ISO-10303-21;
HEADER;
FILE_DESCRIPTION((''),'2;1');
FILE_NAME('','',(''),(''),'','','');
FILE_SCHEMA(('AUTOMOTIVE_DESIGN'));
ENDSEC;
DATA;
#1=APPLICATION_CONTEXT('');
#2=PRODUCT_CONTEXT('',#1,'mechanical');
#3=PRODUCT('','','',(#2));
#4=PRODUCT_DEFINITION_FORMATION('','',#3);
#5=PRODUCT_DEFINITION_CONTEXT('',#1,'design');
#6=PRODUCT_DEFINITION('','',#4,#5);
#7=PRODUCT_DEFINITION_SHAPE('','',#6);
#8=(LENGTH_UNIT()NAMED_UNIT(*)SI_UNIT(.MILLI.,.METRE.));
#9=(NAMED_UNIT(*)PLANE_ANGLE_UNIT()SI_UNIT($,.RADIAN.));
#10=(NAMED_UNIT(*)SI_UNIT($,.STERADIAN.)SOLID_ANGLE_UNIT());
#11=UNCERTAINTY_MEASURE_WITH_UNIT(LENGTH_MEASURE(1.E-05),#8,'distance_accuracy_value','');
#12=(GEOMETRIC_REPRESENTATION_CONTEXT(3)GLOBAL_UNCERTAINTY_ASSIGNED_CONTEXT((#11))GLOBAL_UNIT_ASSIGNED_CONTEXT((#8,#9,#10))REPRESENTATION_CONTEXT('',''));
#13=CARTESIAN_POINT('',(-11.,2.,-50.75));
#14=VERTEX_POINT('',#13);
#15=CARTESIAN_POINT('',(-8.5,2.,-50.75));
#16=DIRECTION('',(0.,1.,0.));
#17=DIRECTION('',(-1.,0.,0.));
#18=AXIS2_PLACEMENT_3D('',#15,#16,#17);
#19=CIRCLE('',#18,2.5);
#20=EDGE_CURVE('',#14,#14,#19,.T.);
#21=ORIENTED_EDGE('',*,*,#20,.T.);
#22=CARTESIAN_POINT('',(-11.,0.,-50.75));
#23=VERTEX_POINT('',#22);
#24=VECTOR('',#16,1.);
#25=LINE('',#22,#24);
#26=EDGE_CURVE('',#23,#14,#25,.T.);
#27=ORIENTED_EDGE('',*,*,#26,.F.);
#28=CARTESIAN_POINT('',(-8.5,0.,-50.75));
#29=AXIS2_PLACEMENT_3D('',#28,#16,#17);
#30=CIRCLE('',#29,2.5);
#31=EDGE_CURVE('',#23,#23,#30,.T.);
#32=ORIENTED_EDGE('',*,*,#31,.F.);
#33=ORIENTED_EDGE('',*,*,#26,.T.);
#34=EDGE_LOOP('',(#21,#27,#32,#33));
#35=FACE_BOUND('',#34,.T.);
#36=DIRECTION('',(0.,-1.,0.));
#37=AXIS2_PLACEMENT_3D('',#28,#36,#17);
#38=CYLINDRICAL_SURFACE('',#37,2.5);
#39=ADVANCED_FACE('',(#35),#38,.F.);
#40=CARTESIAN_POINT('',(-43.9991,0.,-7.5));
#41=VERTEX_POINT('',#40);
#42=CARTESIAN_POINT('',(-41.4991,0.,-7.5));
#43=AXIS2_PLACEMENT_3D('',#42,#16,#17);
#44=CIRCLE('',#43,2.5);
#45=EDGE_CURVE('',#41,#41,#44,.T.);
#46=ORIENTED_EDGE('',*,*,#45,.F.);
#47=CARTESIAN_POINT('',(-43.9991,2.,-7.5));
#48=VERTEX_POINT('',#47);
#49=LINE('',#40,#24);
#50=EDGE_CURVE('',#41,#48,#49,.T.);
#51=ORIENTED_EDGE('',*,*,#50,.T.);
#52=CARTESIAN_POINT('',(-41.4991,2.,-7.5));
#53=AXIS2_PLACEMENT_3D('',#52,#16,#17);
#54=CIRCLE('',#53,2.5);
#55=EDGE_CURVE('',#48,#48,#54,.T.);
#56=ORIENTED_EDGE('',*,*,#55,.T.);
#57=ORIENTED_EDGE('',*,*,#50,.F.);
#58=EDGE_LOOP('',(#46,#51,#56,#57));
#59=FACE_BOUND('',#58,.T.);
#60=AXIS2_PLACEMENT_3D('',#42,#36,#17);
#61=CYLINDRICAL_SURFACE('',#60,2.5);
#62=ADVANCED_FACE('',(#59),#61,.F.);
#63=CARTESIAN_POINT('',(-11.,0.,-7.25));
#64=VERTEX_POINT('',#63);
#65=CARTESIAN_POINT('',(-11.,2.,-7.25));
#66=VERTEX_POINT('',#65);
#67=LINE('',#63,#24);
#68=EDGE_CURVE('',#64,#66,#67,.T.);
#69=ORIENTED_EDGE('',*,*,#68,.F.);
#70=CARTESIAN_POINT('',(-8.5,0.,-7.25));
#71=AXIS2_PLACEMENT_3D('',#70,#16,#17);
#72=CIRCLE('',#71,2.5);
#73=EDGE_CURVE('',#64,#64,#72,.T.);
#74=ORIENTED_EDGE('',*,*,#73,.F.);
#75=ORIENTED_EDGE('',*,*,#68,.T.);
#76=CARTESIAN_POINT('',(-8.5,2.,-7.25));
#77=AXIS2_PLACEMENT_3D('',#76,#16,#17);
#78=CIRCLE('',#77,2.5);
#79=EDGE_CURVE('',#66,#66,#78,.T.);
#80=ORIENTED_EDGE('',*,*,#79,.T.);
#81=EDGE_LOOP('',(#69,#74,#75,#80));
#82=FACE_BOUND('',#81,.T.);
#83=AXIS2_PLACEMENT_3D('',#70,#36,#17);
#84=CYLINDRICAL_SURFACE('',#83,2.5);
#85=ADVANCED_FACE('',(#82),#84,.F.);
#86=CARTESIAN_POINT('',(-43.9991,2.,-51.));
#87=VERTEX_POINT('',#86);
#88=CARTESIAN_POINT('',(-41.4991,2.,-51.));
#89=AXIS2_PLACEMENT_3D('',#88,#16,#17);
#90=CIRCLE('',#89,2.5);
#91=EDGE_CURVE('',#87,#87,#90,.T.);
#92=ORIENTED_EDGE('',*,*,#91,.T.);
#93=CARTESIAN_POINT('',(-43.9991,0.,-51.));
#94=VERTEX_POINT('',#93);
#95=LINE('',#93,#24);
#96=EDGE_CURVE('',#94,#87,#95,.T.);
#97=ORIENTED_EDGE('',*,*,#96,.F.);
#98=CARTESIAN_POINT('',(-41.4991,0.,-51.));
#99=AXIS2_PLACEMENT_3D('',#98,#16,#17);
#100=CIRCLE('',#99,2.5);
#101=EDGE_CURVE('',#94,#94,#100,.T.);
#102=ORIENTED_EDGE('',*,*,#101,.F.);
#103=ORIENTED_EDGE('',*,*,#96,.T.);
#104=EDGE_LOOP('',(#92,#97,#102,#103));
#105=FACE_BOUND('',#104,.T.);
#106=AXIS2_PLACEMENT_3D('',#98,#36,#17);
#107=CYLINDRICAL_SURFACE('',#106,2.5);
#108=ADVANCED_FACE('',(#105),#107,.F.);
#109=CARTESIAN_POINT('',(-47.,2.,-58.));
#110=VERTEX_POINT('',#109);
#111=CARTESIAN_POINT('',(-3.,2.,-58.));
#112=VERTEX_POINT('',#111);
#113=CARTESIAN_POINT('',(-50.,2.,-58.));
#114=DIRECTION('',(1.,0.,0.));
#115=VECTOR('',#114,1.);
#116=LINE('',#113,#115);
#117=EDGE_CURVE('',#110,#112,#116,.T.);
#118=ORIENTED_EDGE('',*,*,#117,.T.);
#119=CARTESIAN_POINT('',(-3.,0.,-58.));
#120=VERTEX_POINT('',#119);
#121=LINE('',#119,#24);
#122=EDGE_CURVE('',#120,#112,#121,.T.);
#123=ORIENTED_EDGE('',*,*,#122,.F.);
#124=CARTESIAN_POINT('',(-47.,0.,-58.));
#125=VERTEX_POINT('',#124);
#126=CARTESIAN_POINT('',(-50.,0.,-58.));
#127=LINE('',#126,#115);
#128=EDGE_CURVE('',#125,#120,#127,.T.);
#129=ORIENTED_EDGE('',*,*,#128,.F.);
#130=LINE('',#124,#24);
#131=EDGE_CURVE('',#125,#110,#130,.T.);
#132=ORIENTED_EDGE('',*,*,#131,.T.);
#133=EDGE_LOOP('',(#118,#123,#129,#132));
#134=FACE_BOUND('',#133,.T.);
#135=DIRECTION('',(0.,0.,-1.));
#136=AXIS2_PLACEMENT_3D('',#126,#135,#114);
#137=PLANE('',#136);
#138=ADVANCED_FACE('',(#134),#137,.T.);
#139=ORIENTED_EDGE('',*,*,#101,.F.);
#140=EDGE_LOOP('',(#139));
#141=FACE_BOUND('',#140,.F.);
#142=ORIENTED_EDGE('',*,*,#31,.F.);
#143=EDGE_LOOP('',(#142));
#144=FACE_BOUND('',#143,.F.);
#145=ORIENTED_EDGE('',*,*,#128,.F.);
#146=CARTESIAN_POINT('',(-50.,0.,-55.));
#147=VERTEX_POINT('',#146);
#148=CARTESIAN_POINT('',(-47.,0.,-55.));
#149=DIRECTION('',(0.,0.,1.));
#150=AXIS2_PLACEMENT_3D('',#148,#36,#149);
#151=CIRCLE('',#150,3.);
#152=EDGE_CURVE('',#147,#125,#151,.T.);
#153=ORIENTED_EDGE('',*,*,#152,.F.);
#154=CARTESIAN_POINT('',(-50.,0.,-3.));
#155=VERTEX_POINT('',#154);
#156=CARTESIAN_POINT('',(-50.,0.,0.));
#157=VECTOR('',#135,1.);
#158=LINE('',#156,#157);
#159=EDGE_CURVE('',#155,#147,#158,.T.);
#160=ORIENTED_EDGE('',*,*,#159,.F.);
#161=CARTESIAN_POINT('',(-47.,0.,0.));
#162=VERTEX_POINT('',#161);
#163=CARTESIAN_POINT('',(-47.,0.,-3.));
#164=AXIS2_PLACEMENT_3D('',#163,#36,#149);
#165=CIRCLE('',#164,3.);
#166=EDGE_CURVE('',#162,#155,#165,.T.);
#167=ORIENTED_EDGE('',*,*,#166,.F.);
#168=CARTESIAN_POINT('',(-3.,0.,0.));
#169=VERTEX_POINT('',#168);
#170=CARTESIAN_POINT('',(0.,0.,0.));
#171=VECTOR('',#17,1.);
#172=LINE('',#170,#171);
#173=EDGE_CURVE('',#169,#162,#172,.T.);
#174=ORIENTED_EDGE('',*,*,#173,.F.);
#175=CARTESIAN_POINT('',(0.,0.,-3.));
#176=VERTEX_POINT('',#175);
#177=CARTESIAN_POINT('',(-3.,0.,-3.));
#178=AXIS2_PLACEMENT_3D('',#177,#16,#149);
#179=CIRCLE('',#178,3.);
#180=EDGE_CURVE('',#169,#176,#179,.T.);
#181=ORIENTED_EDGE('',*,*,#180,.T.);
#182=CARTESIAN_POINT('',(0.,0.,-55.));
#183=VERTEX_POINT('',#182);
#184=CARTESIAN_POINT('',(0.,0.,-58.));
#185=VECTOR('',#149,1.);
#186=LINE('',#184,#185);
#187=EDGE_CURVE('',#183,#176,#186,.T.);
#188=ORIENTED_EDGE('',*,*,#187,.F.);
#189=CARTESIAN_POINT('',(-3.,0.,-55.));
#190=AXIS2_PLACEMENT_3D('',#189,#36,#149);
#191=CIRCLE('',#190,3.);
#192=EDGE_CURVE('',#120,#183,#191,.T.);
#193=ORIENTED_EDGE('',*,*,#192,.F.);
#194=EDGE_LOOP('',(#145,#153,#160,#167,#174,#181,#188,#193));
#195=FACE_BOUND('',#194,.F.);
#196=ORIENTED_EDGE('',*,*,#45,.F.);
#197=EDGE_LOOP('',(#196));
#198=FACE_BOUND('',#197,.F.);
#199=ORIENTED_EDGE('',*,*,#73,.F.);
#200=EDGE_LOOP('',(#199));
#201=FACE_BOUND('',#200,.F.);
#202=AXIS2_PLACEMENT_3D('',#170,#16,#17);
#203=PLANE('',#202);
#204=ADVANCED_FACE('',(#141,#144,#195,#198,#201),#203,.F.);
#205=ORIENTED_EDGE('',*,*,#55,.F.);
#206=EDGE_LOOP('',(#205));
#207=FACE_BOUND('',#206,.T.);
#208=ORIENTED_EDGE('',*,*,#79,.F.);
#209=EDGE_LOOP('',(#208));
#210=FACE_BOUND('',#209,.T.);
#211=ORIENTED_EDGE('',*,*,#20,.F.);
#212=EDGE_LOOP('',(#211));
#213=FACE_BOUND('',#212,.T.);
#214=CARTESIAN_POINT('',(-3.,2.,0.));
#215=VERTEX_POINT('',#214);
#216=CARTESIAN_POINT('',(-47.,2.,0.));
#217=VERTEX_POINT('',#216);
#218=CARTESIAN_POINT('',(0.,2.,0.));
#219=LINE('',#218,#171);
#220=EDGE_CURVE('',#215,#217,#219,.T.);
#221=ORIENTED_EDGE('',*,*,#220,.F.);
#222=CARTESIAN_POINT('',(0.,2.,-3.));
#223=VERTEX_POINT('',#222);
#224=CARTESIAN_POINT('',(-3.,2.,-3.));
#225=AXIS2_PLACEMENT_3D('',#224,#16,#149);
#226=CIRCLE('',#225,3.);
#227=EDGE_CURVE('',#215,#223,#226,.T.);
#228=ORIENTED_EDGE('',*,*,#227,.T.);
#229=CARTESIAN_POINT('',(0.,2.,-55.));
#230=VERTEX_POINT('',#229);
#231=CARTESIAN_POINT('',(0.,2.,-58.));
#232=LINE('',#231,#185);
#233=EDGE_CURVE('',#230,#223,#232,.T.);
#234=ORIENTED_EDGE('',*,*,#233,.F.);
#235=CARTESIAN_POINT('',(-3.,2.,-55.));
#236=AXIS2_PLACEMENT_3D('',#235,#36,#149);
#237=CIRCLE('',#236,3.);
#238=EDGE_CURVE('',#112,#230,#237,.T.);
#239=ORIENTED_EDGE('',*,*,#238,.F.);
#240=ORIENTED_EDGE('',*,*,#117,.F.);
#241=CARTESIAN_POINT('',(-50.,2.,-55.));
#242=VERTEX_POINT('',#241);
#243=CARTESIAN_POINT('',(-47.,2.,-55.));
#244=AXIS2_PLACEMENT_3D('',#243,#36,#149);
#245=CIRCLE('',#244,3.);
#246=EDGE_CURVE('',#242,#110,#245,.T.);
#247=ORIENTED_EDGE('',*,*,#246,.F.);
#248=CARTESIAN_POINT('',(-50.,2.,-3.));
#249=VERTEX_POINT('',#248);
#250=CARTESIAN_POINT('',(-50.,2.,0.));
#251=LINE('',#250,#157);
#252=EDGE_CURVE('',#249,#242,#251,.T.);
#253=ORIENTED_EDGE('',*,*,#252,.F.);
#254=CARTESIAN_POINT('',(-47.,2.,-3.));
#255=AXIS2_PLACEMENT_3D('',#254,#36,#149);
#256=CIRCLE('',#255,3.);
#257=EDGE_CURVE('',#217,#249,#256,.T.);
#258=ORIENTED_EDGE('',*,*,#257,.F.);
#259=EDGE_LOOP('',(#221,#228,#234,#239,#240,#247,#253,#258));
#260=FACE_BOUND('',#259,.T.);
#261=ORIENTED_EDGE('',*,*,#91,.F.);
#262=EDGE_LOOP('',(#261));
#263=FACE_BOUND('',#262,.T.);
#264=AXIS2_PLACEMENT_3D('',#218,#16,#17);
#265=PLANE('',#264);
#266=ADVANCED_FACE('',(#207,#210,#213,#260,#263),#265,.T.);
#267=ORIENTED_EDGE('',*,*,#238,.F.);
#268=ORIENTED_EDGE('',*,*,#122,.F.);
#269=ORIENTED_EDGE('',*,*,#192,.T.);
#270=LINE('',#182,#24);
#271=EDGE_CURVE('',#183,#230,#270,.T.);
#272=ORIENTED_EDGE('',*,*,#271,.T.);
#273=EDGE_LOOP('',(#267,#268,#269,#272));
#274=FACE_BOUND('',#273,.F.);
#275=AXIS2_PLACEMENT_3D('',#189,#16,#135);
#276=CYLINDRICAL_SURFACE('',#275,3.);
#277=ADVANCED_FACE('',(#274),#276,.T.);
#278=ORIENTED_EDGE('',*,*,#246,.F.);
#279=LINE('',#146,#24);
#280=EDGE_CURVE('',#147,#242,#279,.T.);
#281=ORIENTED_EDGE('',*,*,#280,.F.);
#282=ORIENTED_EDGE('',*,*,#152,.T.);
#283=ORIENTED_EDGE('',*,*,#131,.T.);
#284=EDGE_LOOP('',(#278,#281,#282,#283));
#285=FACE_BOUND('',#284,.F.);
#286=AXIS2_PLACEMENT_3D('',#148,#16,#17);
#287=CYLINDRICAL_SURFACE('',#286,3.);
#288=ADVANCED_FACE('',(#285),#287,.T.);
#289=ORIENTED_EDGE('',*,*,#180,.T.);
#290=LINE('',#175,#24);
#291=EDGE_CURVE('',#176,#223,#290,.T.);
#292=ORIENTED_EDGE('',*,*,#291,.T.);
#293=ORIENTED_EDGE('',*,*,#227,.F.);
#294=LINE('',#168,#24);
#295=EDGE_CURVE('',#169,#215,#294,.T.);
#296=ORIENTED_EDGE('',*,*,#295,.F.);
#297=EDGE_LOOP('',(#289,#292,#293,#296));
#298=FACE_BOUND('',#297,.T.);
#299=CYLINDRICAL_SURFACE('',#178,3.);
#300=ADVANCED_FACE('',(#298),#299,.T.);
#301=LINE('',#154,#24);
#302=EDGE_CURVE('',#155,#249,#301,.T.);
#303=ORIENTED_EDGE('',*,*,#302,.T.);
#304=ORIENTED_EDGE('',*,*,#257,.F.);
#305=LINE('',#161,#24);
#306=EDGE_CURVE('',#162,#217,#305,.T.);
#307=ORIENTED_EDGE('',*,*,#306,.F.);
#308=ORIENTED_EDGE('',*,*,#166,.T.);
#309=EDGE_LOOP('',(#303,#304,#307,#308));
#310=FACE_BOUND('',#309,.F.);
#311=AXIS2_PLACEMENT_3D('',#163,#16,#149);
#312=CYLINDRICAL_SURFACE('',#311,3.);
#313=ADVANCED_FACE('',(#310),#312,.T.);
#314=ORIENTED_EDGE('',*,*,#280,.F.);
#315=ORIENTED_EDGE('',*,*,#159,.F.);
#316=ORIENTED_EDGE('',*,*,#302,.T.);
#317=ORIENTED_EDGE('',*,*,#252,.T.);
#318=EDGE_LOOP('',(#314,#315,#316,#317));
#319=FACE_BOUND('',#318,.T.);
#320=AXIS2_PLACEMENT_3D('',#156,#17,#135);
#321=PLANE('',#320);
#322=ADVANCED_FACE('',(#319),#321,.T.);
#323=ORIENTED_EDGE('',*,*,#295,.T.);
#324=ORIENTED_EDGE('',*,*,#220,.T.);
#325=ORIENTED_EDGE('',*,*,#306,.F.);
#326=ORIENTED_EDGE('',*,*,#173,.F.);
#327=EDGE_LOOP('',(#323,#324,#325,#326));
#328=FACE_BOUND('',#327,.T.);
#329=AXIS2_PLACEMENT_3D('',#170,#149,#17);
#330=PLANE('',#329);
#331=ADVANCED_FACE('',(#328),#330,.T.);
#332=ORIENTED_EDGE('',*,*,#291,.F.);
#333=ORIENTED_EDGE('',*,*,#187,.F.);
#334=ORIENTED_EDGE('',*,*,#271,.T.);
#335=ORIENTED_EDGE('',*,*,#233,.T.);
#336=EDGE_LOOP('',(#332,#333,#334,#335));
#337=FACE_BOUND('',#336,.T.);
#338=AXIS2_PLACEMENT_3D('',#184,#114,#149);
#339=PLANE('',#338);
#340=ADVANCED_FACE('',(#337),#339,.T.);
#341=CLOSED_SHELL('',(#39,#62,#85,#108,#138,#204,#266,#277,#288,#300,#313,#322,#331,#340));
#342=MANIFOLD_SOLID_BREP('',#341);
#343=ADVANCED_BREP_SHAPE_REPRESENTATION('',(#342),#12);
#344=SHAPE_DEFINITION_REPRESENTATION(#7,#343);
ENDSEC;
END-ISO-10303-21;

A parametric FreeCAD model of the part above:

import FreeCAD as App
import Part
import Sketcher

V = App.Vector
Q = App.Units.Quantity


def edges_at(feature, points):
    """Names of the edges that pass closest to the given points."""
    edges = feature.Shape.Edges
    near = lambda p: min(range(len(edges)), key=lambda i: edges[i].distToShape(Part.Vertex(*p))[0])
    return sorted({f"Edge{near(p) + 1}" for p in points})


def add_polygon(sketch, points):
    """Adds a closed chain of lines whose ends are joined by coincident constraints."""
    first, n = sketch.GeometryCount, len(points)
    for a, b in zip(points, points[1:] + points[:1]):
        sketch.addGeometry(Part.LineSegment(App.Vector(*a, 0), App.Vector(*b, 0)), False)
    for i in range(n):
        sketch.addConstraint(Sketcher.Constraint("Coincident", first + i, 2, first + (i + 1) % n, 1))

doc = App.newDocument("Part")
params = doc.addObject("Spreadsheet::Sheet", "Params")
for row, (alias, value) in enumerate([
    ("sketch1_diameter", "5 mm"),
    ("sketch1_width", "50 mm"),
    ("sketch1_height", "58 mm"),
    ("pad1_length", "2 mm"),
    ("fillet_radius", "3 mm"),
], start=1):
    params.set(f"A{row}", alias)
    params.set(f"B{row}", "=" + value)
    params.setAlias(f"B{row}", alias)

body = doc.addObject("PartDesign::Body", "Body")

# Sketch on XZ plane
sketch1 = body.newObject("Sketcher::SketchObject", "Sketch")
sketch1.AttachmentSupport = (doc.getObject("XZ_Plane"), [""])
sketch1.MapMode = "FlatFace"
add_polygon(sketch1, [(-50, 0), (0, 0), (0, -58), (-50, -58)])  # lines 0-3
sketch1.addGeometry(Part.Circle(V(-8.5, -50.8, 0), V(0, 0, 1), 2.5), False)  # 4
sketch1.addGeometry(Part.Circle(V(-41.5, -51, 0), V(0, 0, 1), 2.5), False)  # 5
sketch1.addGeometry(Part.Circle(V(-8.5, -7.2, 0), V(0, 0, 1), 2.5), False)  # 6
sketch1.addGeometry(Part.Circle(V(-41.5, -7.5, 0), V(0, 0, 1), 2.5), False)  # 7
sketch1.addConstraint(Sketcher.Constraint("Horizontal", 0))
sketch1.addConstraint(Sketcher.Constraint("Vertical", 1))
sketch1.addConstraint(Sketcher.Constraint("Horizontal", 2))
sketch1.addConstraint(Sketcher.Constraint("Vertical", 3))
sketch1.addConstraint(Sketcher.Constraint("Coincident", 0, 2, -1, 1))
sketch1.addConstraint(Sketcher.Constraint("Equal", 4, 5))
sketch1.addConstraint(Sketcher.Constraint("Equal", 5, 6))
sketch1.addConstraint(Sketcher.Constraint("Equal", 6, 7))
sketch1.addConstraint(Sketcher.Constraint("Vertical", 4, 3, 6, 3))
sketch1.addConstraint(Sketcher.Constraint("Vertical", 5, 3, 7, 3))
sketch1.addConstraint(Sketcher.Constraint("Diameter", 4, Q("5 mm")))
sketch1.addConstraint(Sketcher.Constraint("DistanceX", 0, 1, 0, 2, Q("50 mm")))
sketch1.addConstraint(Sketcher.Constraint("DistanceY", 1, 2, 1, 1, Q("58 mm")))
sketch1.addConstraint(Sketcher.Constraint("DistanceY", 1, 2, 5, 3, Q("7 mm")))
sketch1.addConstraint(Sketcher.Constraint("DistanceX", 4, 3, -1, 1, Q("8.5 mm")))
sketch1.addConstraint(Sketcher.Constraint("DistanceY", 4, 3, 6, 3, Q("43.5 mm")))
sketch1.addConstraint(Sketcher.Constraint("DistanceY", 5, 3, 7, 3, Q("43.5 mm")))
sketch1.addConstraint(Sketcher.Constraint("DistanceY", 6, 3, -1, 1, Q("7.25 mm")))
sketch1.addConstraint(Sketcher.Constraint("DistanceX", 5, 3, -1, 1, Q("41.499 mm")))
sketch1.setExpression("Constraints[14]", "Params.sketch1_diameter")
sketch1.setExpression("Constraints[15]", "Params.sketch1_width")
sketch1.setExpression("Constraints[16]", "Params.sketch1_height")
pad1 = body.newObject("PartDesign::Pad", "Pad")
pad1.Profile = sketch1
pad1.setExpression("Length", "Params.pad1_length")
pad1.Reversed = True
doc.recompute()

fillet = body.newObject("PartDesign::Fillet", "Fillet")
fillet.Base = (pad1, edges_at(pad1, [
    (-50, 1, -58),
    (0, 1, -58),
    (0, 1, 0),
    (-50, 1, 0),
]))
fillet.setExpression("Radius", "Params.fillet_radius")

doc.recompute()
